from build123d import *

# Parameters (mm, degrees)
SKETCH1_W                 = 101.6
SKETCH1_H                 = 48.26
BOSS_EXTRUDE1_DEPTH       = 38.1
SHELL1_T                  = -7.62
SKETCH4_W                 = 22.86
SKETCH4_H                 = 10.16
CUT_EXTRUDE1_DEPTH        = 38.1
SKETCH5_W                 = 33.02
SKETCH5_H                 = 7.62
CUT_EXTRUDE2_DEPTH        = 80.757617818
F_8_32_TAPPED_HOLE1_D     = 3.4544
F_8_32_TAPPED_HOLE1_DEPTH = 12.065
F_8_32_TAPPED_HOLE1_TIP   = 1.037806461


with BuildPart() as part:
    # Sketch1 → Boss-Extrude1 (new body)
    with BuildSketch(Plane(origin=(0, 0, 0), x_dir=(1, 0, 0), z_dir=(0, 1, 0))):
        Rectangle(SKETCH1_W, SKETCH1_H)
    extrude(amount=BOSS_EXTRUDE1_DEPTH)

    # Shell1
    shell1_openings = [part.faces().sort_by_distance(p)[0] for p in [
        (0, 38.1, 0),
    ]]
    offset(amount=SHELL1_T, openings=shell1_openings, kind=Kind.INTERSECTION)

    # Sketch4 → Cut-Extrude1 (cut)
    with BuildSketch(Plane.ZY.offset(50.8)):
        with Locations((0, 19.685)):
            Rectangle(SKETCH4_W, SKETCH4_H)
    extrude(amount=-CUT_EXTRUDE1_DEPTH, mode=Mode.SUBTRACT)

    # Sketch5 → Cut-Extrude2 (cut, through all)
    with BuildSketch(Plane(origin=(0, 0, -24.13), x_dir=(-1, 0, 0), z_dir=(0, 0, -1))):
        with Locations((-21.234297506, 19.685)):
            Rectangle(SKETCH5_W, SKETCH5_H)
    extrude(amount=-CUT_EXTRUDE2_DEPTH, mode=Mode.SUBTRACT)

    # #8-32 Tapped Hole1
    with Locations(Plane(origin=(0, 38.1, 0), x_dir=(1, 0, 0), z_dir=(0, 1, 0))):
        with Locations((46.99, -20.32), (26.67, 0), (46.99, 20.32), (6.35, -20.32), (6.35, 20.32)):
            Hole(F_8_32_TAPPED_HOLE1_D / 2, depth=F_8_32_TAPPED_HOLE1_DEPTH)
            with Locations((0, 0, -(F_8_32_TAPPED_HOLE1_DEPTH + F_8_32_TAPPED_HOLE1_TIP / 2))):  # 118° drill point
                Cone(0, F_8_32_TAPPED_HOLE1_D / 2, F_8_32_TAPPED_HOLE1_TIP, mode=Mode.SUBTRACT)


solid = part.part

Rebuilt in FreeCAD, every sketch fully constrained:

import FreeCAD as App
import Part
import Sketcher

V = App.Vector
Q = App.Units.Quantity


def faces_at(feature, points):
    """Names of the faces that lie closest to the given points."""
    faces = feature.Shape.Faces
    near = lambda p: min(range(len(faces)), key=lambda i: faces[i].distToShape(Part.Vertex(*p))[0])
    return sorted({f"Face{near(p) + 1}" for p in points})


def add_polygon(sketch, points):
    """Adds a closed chain of lines whose ends are joined by coincident constraints."""
    first, n = sketch.GeometryCount, len(points)
    for a, b in zip(points, points[1:] + points[:1]):
        sketch.addGeometry(Part.LineSegment(App.Vector(*a, 0), App.Vector(*b, 0)), False)
    for i in range(n):
        sketch.addConstraint(Sketcher.Constraint("Coincident", first + i, 2, first + (i + 1) % n, 1))

doc = App.newDocument("Part")
body = doc.addObject("PartDesign::Body", "Body")

# Sketch on XZ plane
sketch1 = doc.addObject("Sketcher::SketchObject", "Sketch")
body.addObject(sketch1)
sketch1.AttachmentSupport = (doc.XZ_Plane, [""])
sketch1.MapMode = "FlatFace"
add_polygon(sketch1, [(-50.8, -24.13), (-50.8, 24.13), (50.8, 24.13), (50.8, -24.13)])  # lines 0-3
sketch1.addConstraint([
    Sketcher.Constraint("Vertical", 0),
    Sketcher.Constraint("Horizontal", 1),
    Sketcher.Constraint("Vertical", 2),
    Sketcher.Constraint("Horizontal", 3),
    Sketcher.Constraint("Symmetric", 0, 2, 2, 2, -1, 1),
    Sketcher.Constraint("DistanceX", 1, 1, 1, 2, Q("4 in")),
    Sketcher.Constraint("DistanceY", 0, 1, 0, 2, Q("1.9 in")),
])
pad1 = doc.addObject("PartDesign::Pad", "Pad")
body.addObject(pad1)
pad1.Profile = sketch1
pad1.Length = Q("1.5 in")
pad1.Reversed = True
doc.recompute()

thickness = doc.addObject("PartDesign::Thickness", "Thickness")
body.addObject(thickness)
thickness.Base = (pad1, faces_at(pad1, [(0, 38.1, 0)]))
thickness.Value = Q("0.3 in")
thickness.Reversed = True
thickness.Join = "Intersection"

# Sketch on YZ plane
sketch2 = doc.addObject("Sketcher::SketchObject", "Sketch001")
body.addObject(sketch2)
sketch2.AttachmentSupport = (doc.YZ_Plane, [""])
sketch2.MapMode = "FlatFace"
sketch2.AttachmentOffset = App.Placement(V(0, 0, -2 * 25.4), App.Rotation())
add_polygon(sketch2, [(24.765, -11.43), (14.605, -11.43), (14.605, 11.43), (24.765, 11.43)])  # lines 0-3
sketch2.addConstraint([
    Sketcher.Constraint("Horizontal", 0),
    Sketcher.Constraint("Vertical", 1),
    Sketcher.Constraint("Horizontal", 2),
    Sketcher.Constraint("Vertical", 3),
    Sketcher.Constraint("DistanceX", 0, 2, 0, 1, Q("0.4 in")),
    Sketcher.Constraint("DistanceY", 1, 1, 1, 2, Q("0.9 in")),
    Sketcher.Constraint("DistanceY", 0, 2, -1, 1, Q("0.45 in")),
    Sketcher.Constraint("DistanceX", -1, 1, 0, 2, Q("0.575 in")),
])
pocket1 = doc.addObject("PartDesign::Pocket", "Pocket")
body.addObject(pocket1)
pocket1.Profile = sketch2
pocket1.Length = Q("1.5 in")
pocket1.Reversed = True

# Sketch on XY plane
sketch3 = doc.addObject("Sketcher::SketchObject", "Sketch002")
body.addObject(sketch3)
sketch3.AttachmentSupport = (doc.XY_Plane, [""])
sketch3.MapMode = "FlatFace"
sketch3.AttachmentOffset = App.Placement(V(0, 0, -0.95 * 25.4), App.Rotation())
add_polygon(sketch3, [(37.744298, 23.495), (37.744298, 15.875), (4.724298, 15.875), (4.724298, 23.495)])  # lines 0-3
sketch3.addConstraint([
    Sketcher.Constraint("Vertical", 0),
    Sketcher.Constraint("Horizontal", 1),
    Sketcher.Constraint("Vertical", 2),
    Sketcher.Constraint("Horizontal", 3),
    Sketcher.Constraint("DistanceX", 1, 2, 1, 1, Q("1.3 in")),
    Sketcher.Constraint("DistanceY", 0, 2, 0, 1, Q("0.3 in")),
    Sketcher.Constraint("DistanceY", -1, 1, 0, 2, Q("0.625 in")),
    Sketcher.Constraint("DistanceX", -1, 1, 0, 2, Q("37.744298 mm")),
])
pocket2 = doc.addObject("PartDesign::Pocket", "Pocket001")
body.addObject(pocket2)
pocket2.Profile = sketch3
pocket2.Type = "ThroughAll"
pocket2.Reversed = True

# Sketch on XZ plane
sketch4 = doc.addObject("Sketcher::SketchObject", "Sketch003")
body.addObject(sketch4)
sketch4.AttachmentSupport = (doc.XZ_Plane, [""])
sketch4.MapMode = "FlatFace"
sketch4.AttachmentOffset = App.Placement(V(0, 0, -1.5 * 25.4), App.Rotation())
sketch4.addGeometry([
    Part.Circle(V(46.99, 20.32, 0), V(0, 0, 1), 1.7272),  # 0
    Part.Circle(V(26.67, 0, 0), V(0, 0, 1), 1.7272),  # 1
    Part.Circle(V(46.99, -20.32, 0), V(0, 0, 1), 1.7272),  # 2
    Part.Circle(V(6.35, 20.32, 0), V(0, 0, 1), 1.7272),  # 3
    Part.Circle(V(6.35, -20.32, 0), V(0, 0, 1), 1.7272),  # 4
], False)
sketch4.addConstraint([
    Sketcher.Constraint("Equal", 0, 1),
    Sketcher.Constraint("Equal", 1, 2),
    Sketcher.Constraint("Equal", 2, 3),
    Sketcher.Constraint("Equal", 3, 4),
    Sketcher.Constraint("Symmetric", 0, 3, 2, 3, -1),
    Sketcher.Constraint("Symmetric", 3, 3, 4, 3, -1),
    Sketcher.Constraint("PointOnObject", 1, 3, -1),
    Sketcher.Constraint("Horizontal", 0, 3, 3, 3),
    Sketcher.Constraint("Diameter", 0, Q("0.136 in")),
    Sketcher.Constraint("DistanceY", -1, 1, 0, 3, Q("0.8 in")),
    Sketcher.Constraint("DistanceX", 1, 3, 0, 3, Q("0.8 in")),
    Sketcher.Constraint("DistanceX", 3, 3, 1, 3, Q("0.8 in")),
    Sketcher.Constraint("DistanceX", -1, 1, 0, 3, Q("1.85 in")),
])
doc.recompute()
hole = doc.addObject("PartDesign::Hole", "Hole")
body.addObject(hole)
hole.Profile = sketch4
hole.ThreadType = "None"
hole.Diameter = Q("0.136 in")
hole.DepthType = "Dimension"
hole.Depth = Q("0.475 in")
hole.DrillPoint = "Angled"
hole.DrillPointAngle = 118
hole.Reversed = True

doc.recompute()
